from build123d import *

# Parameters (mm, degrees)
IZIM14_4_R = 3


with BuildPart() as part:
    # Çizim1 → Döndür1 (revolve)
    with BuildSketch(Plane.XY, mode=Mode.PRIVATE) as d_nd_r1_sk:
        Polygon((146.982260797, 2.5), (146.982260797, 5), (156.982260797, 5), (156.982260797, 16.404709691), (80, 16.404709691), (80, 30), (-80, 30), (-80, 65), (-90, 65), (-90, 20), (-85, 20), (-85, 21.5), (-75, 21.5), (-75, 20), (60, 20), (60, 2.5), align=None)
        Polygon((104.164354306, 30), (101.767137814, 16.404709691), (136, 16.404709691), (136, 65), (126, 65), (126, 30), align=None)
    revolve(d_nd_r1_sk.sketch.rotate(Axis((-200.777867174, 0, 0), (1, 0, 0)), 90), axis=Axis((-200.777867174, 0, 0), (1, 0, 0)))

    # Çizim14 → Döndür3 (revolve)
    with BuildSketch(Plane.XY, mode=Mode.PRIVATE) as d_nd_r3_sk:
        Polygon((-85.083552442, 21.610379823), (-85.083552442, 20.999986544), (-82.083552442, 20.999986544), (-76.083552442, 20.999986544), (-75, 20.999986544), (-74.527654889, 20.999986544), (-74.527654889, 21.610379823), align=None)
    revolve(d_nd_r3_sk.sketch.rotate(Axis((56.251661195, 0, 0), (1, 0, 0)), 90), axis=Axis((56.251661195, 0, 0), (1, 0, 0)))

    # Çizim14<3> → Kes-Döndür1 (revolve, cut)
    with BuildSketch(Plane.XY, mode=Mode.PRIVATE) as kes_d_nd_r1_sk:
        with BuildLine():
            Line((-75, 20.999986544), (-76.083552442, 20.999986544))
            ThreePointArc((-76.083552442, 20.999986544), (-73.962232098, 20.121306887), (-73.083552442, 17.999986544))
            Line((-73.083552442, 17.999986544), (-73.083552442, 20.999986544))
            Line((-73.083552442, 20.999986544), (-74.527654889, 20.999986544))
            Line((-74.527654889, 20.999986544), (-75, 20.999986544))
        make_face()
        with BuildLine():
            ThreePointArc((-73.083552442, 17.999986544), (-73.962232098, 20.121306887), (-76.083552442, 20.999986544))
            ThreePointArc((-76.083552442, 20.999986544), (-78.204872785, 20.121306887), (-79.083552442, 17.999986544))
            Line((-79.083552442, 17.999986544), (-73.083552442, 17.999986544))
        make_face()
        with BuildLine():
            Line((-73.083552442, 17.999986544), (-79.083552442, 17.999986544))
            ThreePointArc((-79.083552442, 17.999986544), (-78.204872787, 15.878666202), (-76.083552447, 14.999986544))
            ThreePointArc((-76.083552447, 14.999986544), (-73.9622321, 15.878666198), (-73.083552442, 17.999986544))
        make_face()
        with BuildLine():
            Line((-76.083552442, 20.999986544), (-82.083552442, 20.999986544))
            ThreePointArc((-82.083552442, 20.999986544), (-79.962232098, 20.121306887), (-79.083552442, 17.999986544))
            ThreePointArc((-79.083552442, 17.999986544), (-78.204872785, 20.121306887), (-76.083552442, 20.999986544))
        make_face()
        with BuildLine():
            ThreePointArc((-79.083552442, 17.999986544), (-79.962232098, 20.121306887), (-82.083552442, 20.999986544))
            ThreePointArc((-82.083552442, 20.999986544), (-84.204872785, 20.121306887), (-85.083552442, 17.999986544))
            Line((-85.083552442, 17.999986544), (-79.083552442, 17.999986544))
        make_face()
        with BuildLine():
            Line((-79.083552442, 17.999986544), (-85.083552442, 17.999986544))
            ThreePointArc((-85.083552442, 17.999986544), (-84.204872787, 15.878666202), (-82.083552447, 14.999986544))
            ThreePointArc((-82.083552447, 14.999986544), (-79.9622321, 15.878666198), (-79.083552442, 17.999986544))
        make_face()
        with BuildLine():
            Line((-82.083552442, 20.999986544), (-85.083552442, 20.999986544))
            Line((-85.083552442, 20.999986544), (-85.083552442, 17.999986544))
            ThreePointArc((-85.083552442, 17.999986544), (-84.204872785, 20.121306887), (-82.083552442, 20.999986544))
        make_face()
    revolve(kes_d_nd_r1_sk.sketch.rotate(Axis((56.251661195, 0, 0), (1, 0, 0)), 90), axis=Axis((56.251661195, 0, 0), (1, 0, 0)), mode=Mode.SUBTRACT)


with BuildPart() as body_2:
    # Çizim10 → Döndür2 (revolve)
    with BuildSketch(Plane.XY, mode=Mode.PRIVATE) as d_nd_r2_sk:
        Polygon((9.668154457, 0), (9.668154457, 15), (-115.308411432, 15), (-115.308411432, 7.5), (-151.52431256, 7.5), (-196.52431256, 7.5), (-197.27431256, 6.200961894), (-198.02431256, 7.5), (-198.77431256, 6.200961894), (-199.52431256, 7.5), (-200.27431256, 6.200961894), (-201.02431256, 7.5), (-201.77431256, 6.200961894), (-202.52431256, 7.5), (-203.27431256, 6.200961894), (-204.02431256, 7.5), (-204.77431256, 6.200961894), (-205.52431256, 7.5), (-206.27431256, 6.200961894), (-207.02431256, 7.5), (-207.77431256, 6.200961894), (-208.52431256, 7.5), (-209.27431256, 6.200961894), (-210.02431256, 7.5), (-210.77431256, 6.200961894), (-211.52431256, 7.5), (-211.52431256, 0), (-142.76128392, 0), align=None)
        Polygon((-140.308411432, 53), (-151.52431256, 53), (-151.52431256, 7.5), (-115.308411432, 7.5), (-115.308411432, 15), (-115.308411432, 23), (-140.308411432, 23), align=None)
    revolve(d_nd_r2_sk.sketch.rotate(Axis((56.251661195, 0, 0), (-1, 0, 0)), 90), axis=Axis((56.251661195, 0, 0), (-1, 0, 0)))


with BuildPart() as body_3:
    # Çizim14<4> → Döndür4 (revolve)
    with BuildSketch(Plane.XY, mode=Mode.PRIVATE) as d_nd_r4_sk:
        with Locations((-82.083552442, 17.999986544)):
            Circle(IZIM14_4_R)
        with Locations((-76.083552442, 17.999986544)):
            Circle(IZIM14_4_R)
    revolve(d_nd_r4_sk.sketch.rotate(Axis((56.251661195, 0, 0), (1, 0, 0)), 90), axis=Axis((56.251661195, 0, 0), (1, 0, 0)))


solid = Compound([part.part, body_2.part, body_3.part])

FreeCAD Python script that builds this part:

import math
import FreeCAD as App
import Part
import Sketcher
Q = App.Units.Quantity


def add_polygon(sketch, points):
    """Adds a closed chain of lines whose ends are joined by coincident constraints."""
    first, n = sketch.GeometryCount, len(points)
    for a, b in zip(points, points[1:] + points[:1]):
        sketch.addGeometry(Part.LineSegment(App.Vector(*a, 0), App.Vector(*b, 0)), False)
    for i in range(n):
        sketch.addConstraint(Sketcher.Constraint("Coincident", first + i, 2, first + (i + 1) % n, 1))

doc = App.newDocument("Part")
params = doc.addObject("Spreadsheet::Sheet", "Params")
for row, (alias, value) in enumerate([
    ("sketch1_width", "10 mm"),
    ("sketch1_width2", "160 mm"),
    ("sketch1_width3", "5 mm"),
    ("sketch1_width4", "135 mm"),
    ("sketch1_height", "35 mm"),
    ("revolution_angle", "360 deg"),
    ("revolution2_angle", "360 deg"),
    ("sketch3_radius", "3 mm"),
    ("sketch3_height", "3 mm"),
    ("groove_angle", "360 deg"),
    ("sketch4_width", "25 mm"),
    ("sketch4_width2", "45 mm"),
    ("sketch4_height", "15 mm"),
    ("sketch4_height2", "8 mm"),
    ("sketch4_height3", "30 mm"),
    ("revolution3_angle", "360 deg"),
    ("sketch5_diameter", "6 mm"),
    ("revolution4_angle", "360 deg"),
], start=1):
    params.set(f"A{row}", alias)
    params.set(f"B{row}", "=" + value)
    params.setAlias(f"B{row}", alias)

body = doc.addObject("PartDesign::Body", "Body")

# Sketch on XY plane
sketch1 = body.newObject("Sketcher::SketchObject", "Sketch")
sketch1.AttachmentSupport = (doc.getObject("XY_Plane"), [""])
sketch1.MapMode = "FlatFace"
add_polygon(sketch1, [(147, 2.5), (147, 5), (157, 5), (157, 16.4), (136, 16.4), (136, 65), (126, 65), (126, 30), (104.2, 30), (101.8, 16.4), (80, 16.4), (80, 30), (-80, 30), (-80, 65), (-90, 65), (-90, 20), (-85, 20), (-85, 21.5), (-75, 21.5), (-75, 20), (60, 20), (60, 2.5)])  # lines 0-21
sketch1.addConstraint([
    Sketcher.Constraint("Vertical", 0),
    Sketcher.Constraint("Horizontal", 1),
    Sketcher.Constraint("Vertical", 2),
    Sketcher.Constraint("Horizontal", 3),
    Sketcher.Constraint("Vertical", 4),
    Sketcher.Constraint("Horizontal", 5),
    Sketcher.Constraint("Vertical", 6),
    Sketcher.Constraint("Horizontal", 7),
    Sketcher.Constraint("Horizontal", 9),
    Sketcher.Constraint("Vertical", 10),
    Sketcher.Constraint("Horizontal", 11),
    Sketcher.Constraint("Vertical", 12),
    Sketcher.Constraint("Horizontal", 13),
    Sketcher.Constraint("Vertical", 14),
    Sketcher.Constraint("Horizontal", 15),
    Sketcher.Constraint("Vertical", 16),
    Sketcher.Constraint("Horizontal", 17),
    Sketcher.Constraint("Vertical", 18),
    Sketcher.Constraint("Horizontal", 19),
    Sketcher.Constraint("Vertical", 20),
    Sketcher.Constraint("Horizontal", 21),
    Sketcher.Constraint("Horizontal", 3, 2, 8, 2),
    Sketcher.Constraint("Horizontal", 7, 2, 10, 2),
    Sketcher.Constraint("Horizontal", 5, 2, 12, 2),
    Sketcher.Constraint("Horizontal", 15, 2, 18, 2),
    Sketcher.Constraint("Equal", 1, 5),
    Sketcher.Constraint("Equal", 5, 13),
    Sketcher.Constraint("Equal", 13, 17),
    Sketcher.Constraint("DistanceX", 1, 1, 1, 2, Q("10 mm")),
    Sketcher.Constraint("DistanceX", 11, 2, 11, 1, Q("160 mm")),
    Sketcher.Constraint("DistanceX", 15, 1, 15, 2, Q("5 mm")),
    Sketcher.Constraint("DistanceX", 19, 1, 19, 2, Q("135 mm")),
    Sketcher.Constraint("DistanceY", 6, 2, 6, 1, Q("35 mm")),
    Sketcher.Constraint("DistanceY", 14, 2, 14, 1, Q("45 mm")),
    Sketcher.Constraint("Angle", 8, Q("-100 deg")),
    Sketcher.Constraint("DistanceY", 0, 1, 0, 2, Q("2.5 mm")),
    Sketcher.Constraint("DistanceY", 16, 1, 16, 2, Q("1.5 mm")),
    Sketcher.Constraint("DistanceY", 20, 2, 20, 1, Q("17.5 mm")),
    Sketcher.Constraint("DistanceY", -1, 1, 0, 2, Q("5 mm")),
    Sketcher.Constraint("DistanceX", -1, 1, 3, 2, Q("136 mm")),
    Sketcher.Constraint("DistanceX", -1, 1, 9, 2, Q("80 mm")),
    Sketcher.Constraint("DistanceX", 3, 2, 3, 1, Q("20.982261 mm")),
    Sketcher.Constraint("DistanceY", 2, 1, 2, 2, Q("11.40471 mm")),
    Sketcher.Constraint("DistanceX", 7, 2, 7, 1, Q("21.835646 mm")),
])
sketch1.setExpression("Constraints[50]", "Params.sketch1_width")
sketch1.setExpression("Constraints[51]", "Params.sketch1_width2")
sketch1.setExpression("Constraints[52]", "Params.sketch1_width3")
sketch1.setExpression("Constraints[53]", "Params.sketch1_width4")
sketch1.setExpression("Constraints[54]", "Params.sketch1_height")
revolution = body.newObject("PartDesign::Revolution", "Revolution")
revolution.Profile = sketch1
revolution.ReferenceAxis = (sketch1, ["H_Axis"])
revolution.setExpression("Angle", "Params.revolution_angle")

# Sketch on XY plane
sketch2 = body.newObject("Sketcher::SketchObject", "Sketch001")
sketch2.AttachmentSupport = (doc.getObject("XY_Plane"), [""])
sketch2.MapMode = "FlatFace"
add_polygon(sketch2, [(-85.1, 21.6), (-85.1, 21), (-74.5, 21), (-74.5, 21.6)])  # lines 0-3
sketch2.addConstraint([
    Sketcher.Constraint("Vertical", 0),
    Sketcher.Constraint("Horizontal", 1),
    Sketcher.Constraint("Vertical", 2),
    Sketcher.Constraint("Horizontal", 3),
    Sketcher.Constraint("DistanceX", 1, 1, 1, 2, Q("10.555898 mm")),
    Sketcher.Constraint("DistanceY", 0, 2, 0, 1, Q("0.610393 mm")),
    Sketcher.Constraint("DistanceY", -1, 1, 2, 2, Q("21.61038 mm")),
    Sketcher.Constraint("DistanceX", 0, 2, -1, 1, Q("85.083552 mm")),
])
revolution2 = body.newObject("PartDesign::Revolution", "Revolution001")
revolution2.Profile = sketch2
revolution2.ReferenceAxis = (sketch2, ["H_Axis"])
revolution2.setExpression("Angle", "Params.revolution2_angle")

# Sketch on XY plane
sketch3 = body.newObject("Sketcher::SketchObject", "Sketch002")
sketch3.AttachmentSupport = (doc.getObject("XY_Plane"), [""])
sketch3.MapMode = "FlatFace"
sketch3.addGeometry([
    Part.LineSegment(App.Vector(-73.1, 18, 0), App.Vector(-73.1, 21, 0)),  # 0
    Part.LineSegment(App.Vector(-73.1, 21, 0), App.Vector(-85.1, 21, 0)),  # 1
    Part.LineSegment(App.Vector(-85.1, 21, 0), App.Vector(-85.1, 18, 0)),  # 2
    Part.ArcOfCircle(Part.Circle(App.Vector(-82.1, 18, 0), App.Vector(0, 0, 1), 3), math.radians(180), math.radians(270)),  # 3
    Part.ArcOfCircle(Part.Circle(App.Vector(-82.1, 18, 0), App.Vector(0, 0, 1), 3), math.radians(-90), math.radians(0)),  # 4
    Part.ArcOfCircle(Part.Circle(App.Vector(-76.1, 18, 0), App.Vector(0, 0, 1), 3), math.radians(180), math.radians(270)),  # 5
    Part.ArcOfCircle(Part.Circle(App.Vector(-76.1, 18, 0), App.Vector(0, 0, 1), 3), math.radians(-90), math.radians(0)),  # 6
], False)
sketch3.addConstraint([
    Sketcher.Constraint("Coincident", 0, 2, 1, 1),
    Sketcher.Constraint("Coincident", 1, 2, 2, 1),
    Sketcher.Constraint("Tangent", 2, 2, 3, 1),
    Sketcher.Constraint("Tangent", 3, 2, 4, 1),
    Sketcher.Constraint("Tangent", 4, 2, 5, 1),
    Sketcher.Constraint("Tangent", 5, 2, 6, 1),
    Sketcher.Constraint("Tangent", 6, 2, 0, 1),
    Sketcher.Constraint("Vertical", 0),
    Sketcher.Constraint("Horizontal", 1),
    Sketcher.Constraint("Vertical", 2),
    Sketcher.Constraint("Equal", 3, 4),
    Sketcher.Constraint("Equal", 4, 5),
    Sketcher.Constraint("Equal", 5, 6),
    Sketcher.Constraint("Horizontal", 4, 3, 5, 3),
    Sketcher.Constraint("Vertical", 4, 3, 3, 2),
    Sketcher.Constraint("Vertical", 6, 3, 5, 2),
    Sketcher.Constraint("Radius", 3, Q("3 mm")),
    Sketcher.Constraint("DistanceY", 0, 1, 0, 2, Q("3 mm")),
    Sketcher.Constraint("DistanceX", 3, 3, -1, 1, Q("82.083552 mm")),
    Sketcher.Constraint("DistanceY", -1, 1, 3, 3, Q("17.999987 mm")),
])
sketch3.setExpression("Constraints[16]", "Params.sketch3_radius")
sketch3.setExpression("Constraints[17]", "Params.sketch3_height")
groove = body.newObject("PartDesign::Groove", "Groove")
groove.Profile = sketch3
groove.ReferenceAxis = (sketch3, ["H_Axis"])
groove.setExpression("Angle", "Params.groove_angle")
body2 = doc.addObject("PartDesign::Body", "Body001")

# Sketch on XY plane
sketch4 = body2.newObject("Sketcher::SketchObject", "Sketch003")
sketch4.AttachmentSupport = (doc.getObject("XY_Plane001"), [""])
sketch4.MapMode = "FlatFace"
add_polygon(sketch4, [(9.7, 0), (9.7, 15), (-115.3, 15), (-115.3, 23), (-140.3, 23), (-140.3, 53), (-151.5, 53), (-151.5, 7.5), (-196.5, 7.5), (-197.3, 6.2), (-198, 7.5), (-198.8, 6.2), (-199.5, 7.5), (-200.3, 6.2), (-201, 7.5), (-201.8, 6.2), (-202.5, 7.5), (-203.3, 6.2), (-204, 7.5), (-204.8, 6.2), (-205.5, 7.5), (-206.3, 6.2), (-207, 7.5), (-207.8, 6.2), (-208.5, 7.5), (-209.3, 6.2), (-210, 7.5), (-210.8, 6.2), (-211.5, 7.5), (-211.5, 0)])  # lines 0-29
sketch4.addConstraint([
    Sketcher.Constraint("Vertical", 0),
    Sketcher.Constraint("Horizontal", 1),
    Sketcher.Constraint("Vertical", 2),
    Sketcher.Constraint("Horizontal", 3),
    Sketcher.Constraint("Vertical", 4),
    Sketcher.Constraint("Horizontal", 5),
    Sketcher.Constraint("Vertical", 6),
    Sketcher.Constraint("Horizontal", 7),
    Sketcher.Constraint("Vertical", 28),
    Sketcher.Constraint("Horizontal", 29),
    Sketcher.Constraint("PointOnObject", 28, 2, -1),
    Sketcher.Constraint("Parallel", 8, 10),
    Sketcher.Constraint("Parallel", 9, 11),
    Sketcher.Constraint("Parallel", 10, 12),
    Sketcher.Constraint("Parallel", 11, 13),
    Sketcher.Constraint("Parallel", 12, 14),
    Sketcher.Constraint("Parallel", 13, 15),
    Sketcher.Constraint("Parallel", 14, 16),
    Sketcher.Constraint("Parallel", 15, 17),
    Sketcher.Constraint("Parallel", 16, 18),
    Sketcher.Constraint("Parallel", 17, 19),
    Sketcher.Constraint("Parallel", 18, 20),
    Sketcher.Constraint("Parallel", 19, 21),
    Sketcher.Constraint("Parallel", 20, 22),
    Sketcher.Constraint("Parallel", 21, 23),
    Sketcher.Constraint("Parallel", 22, 24),
    Sketcher.Constraint("Parallel", 23, 25),
    Sketcher.Constraint("Parallel", 24, 26),
    Sketcher.Constraint("Parallel", 25, 27),
    Sketcher.Constraint("Horizontal", 7, 2, 9, 2),
    Sketcher.Constraint("Horizontal", 8, 2, 10, 2),
    Sketcher.Constraint("Horizontal", 9, 2, 11, 2),
    Sketcher.Constraint("Horizontal", 10, 2, 12, 2),
    Sketcher.Constraint("Horizontal", 11, 2, 13, 2),
    Sketcher.Constraint("Horizontal", 12, 2, 14, 2),
    Sketcher.Constraint("Horizontal", 13, 2, 15, 2),
    Sketcher.Constraint("Horizontal", 14, 2, 16, 2),
    Sketcher.Constraint("Horizontal", 15, 2, 17, 2),
    Sketcher.Constraint("Horizontal", 16, 2, 18, 2),
    Sketcher.Constraint("Horizontal", 17, 2, 19, 2),
    Sketcher.Constraint("Horizontal", 18, 2, 20, 2),
    Sketcher.Constraint("Horizontal", 19, 2, 21, 2),
    Sketcher.Constraint("Horizontal", 20, 2, 22, 2),
    Sketcher.Constraint("Horizontal", 21, 2, 23, 2),
    Sketcher.Constraint("Horizontal", 22, 2, 24, 2),
    Sketcher.Constraint("Horizontal", 23, 2, 25, 2),
    Sketcher.Constraint("Horizontal", 24, 2, 26, 2),
    Sketcher.Constraint("Horizontal", 25, 2, 27, 2),
    Sketcher.Constraint("Equal", 8, 9),
    Sketcher.Constraint("DistanceX", 3, 2, 3, 1, Q("25 mm")),
    Sketcher.Constraint("DistanceX", 7, 2, 7, 1, Q("45 mm")),
    Sketcher.Constraint("DistanceY", 0, 1, 0, 2, Q("15 mm")),
    Sketcher.Constraint("DistanceY", 2, 1, 2, 2, Q("8 mm")),
    Sketcher.Constraint("DistanceY", 4, 1, 4, 2, Q("30 mm")),
    Sketcher.Constraint("Angle", 8, Q("-120 deg")),
    Sketcher.Constraint("DistanceY", 6, 2, 6, 1, Q("45.5 mm")),
    Sketcher.Constraint("DistanceX", 11, 2, 7, 2, Q("3 mm")),
    Sketcher.Constraint("DistanceX", 5, 2, 5, 1, Q("11.215901 mm")),
    Sketcher.Constraint("DistanceX", 1, 2, 1, 1, Q("124.976566 mm")),
    Sketcher.Constraint("DistanceX", 1, 2, -1, 1, Q("115.308411 mm")),
])
sketch4.setExpression("Constraints[79]", "Params.sketch4_width")
sketch4.setExpression("Constraints[80]", "Params.sketch4_width2")
sketch4.setExpression("Constraints[81]", "Params.sketch4_height")
sketch4.setExpression("Constraints[82]", "Params.sketch4_height2")
sketch4.setExpression("Constraints[83]", "Params.sketch4_height3")
revolution3 = body2.newObject("PartDesign::Revolution", "Revolution002")
revolution3.Profile = sketch4
revolution3.ReferenceAxis = (sketch4, ["H_Axis"])
revolution3.setExpression("Angle", "Params.revolution3_angle")
body3 = doc.addObject("PartDesign::Body", "Body002")
body3.AllowCompound = True

# Sketch on XY plane
sketch5 = body3.newObject("Sketcher::SketchObject", "Sketch004")
sketch5.AttachmentSupport = (doc.getObject("XY_Plane002"), [""])
sketch5.MapMode = "FlatFace"
sketch5.addGeometry([
    Part.Circle(App.Vector(-82.1, 18, 0), App.Vector(0, 0, 1), 3),
    Part.Circle(App.Vector(-76.1, 18, 0), App.Vector(0, 0, 1), 3),
], False)
sketch5.addConstraint([
    Sketcher.Constraint("Equal", 0, 1),
    Sketcher.Constraint("Horizontal", 0, 3, 1, 3),
    Sketcher.Constraint("Diameter", 0, Q("6 mm")),
    Sketcher.Constraint("DistanceX", 0, 3, 1, 3, Q("6 mm")),
    Sketcher.Constraint("DistanceX", 0, 3, -1, 1, Q("82.083552 mm")),
    Sketcher.Constraint("DistanceY", -1, 1, 0, 3, Q("17.999987 mm")),
])
sketch5.setExpression("Constraints[2]", "Params.sketch5_diameter")
revolution4 = body3.newObject("PartDesign::Revolution", "Revolution003")
revolution4.Profile = sketch5
revolution4.ReferenceAxis = (sketch5, ["H_Axis"])
revolution4.setExpression("Angle", "Params.revolution4_angle")

doc.recompute()
